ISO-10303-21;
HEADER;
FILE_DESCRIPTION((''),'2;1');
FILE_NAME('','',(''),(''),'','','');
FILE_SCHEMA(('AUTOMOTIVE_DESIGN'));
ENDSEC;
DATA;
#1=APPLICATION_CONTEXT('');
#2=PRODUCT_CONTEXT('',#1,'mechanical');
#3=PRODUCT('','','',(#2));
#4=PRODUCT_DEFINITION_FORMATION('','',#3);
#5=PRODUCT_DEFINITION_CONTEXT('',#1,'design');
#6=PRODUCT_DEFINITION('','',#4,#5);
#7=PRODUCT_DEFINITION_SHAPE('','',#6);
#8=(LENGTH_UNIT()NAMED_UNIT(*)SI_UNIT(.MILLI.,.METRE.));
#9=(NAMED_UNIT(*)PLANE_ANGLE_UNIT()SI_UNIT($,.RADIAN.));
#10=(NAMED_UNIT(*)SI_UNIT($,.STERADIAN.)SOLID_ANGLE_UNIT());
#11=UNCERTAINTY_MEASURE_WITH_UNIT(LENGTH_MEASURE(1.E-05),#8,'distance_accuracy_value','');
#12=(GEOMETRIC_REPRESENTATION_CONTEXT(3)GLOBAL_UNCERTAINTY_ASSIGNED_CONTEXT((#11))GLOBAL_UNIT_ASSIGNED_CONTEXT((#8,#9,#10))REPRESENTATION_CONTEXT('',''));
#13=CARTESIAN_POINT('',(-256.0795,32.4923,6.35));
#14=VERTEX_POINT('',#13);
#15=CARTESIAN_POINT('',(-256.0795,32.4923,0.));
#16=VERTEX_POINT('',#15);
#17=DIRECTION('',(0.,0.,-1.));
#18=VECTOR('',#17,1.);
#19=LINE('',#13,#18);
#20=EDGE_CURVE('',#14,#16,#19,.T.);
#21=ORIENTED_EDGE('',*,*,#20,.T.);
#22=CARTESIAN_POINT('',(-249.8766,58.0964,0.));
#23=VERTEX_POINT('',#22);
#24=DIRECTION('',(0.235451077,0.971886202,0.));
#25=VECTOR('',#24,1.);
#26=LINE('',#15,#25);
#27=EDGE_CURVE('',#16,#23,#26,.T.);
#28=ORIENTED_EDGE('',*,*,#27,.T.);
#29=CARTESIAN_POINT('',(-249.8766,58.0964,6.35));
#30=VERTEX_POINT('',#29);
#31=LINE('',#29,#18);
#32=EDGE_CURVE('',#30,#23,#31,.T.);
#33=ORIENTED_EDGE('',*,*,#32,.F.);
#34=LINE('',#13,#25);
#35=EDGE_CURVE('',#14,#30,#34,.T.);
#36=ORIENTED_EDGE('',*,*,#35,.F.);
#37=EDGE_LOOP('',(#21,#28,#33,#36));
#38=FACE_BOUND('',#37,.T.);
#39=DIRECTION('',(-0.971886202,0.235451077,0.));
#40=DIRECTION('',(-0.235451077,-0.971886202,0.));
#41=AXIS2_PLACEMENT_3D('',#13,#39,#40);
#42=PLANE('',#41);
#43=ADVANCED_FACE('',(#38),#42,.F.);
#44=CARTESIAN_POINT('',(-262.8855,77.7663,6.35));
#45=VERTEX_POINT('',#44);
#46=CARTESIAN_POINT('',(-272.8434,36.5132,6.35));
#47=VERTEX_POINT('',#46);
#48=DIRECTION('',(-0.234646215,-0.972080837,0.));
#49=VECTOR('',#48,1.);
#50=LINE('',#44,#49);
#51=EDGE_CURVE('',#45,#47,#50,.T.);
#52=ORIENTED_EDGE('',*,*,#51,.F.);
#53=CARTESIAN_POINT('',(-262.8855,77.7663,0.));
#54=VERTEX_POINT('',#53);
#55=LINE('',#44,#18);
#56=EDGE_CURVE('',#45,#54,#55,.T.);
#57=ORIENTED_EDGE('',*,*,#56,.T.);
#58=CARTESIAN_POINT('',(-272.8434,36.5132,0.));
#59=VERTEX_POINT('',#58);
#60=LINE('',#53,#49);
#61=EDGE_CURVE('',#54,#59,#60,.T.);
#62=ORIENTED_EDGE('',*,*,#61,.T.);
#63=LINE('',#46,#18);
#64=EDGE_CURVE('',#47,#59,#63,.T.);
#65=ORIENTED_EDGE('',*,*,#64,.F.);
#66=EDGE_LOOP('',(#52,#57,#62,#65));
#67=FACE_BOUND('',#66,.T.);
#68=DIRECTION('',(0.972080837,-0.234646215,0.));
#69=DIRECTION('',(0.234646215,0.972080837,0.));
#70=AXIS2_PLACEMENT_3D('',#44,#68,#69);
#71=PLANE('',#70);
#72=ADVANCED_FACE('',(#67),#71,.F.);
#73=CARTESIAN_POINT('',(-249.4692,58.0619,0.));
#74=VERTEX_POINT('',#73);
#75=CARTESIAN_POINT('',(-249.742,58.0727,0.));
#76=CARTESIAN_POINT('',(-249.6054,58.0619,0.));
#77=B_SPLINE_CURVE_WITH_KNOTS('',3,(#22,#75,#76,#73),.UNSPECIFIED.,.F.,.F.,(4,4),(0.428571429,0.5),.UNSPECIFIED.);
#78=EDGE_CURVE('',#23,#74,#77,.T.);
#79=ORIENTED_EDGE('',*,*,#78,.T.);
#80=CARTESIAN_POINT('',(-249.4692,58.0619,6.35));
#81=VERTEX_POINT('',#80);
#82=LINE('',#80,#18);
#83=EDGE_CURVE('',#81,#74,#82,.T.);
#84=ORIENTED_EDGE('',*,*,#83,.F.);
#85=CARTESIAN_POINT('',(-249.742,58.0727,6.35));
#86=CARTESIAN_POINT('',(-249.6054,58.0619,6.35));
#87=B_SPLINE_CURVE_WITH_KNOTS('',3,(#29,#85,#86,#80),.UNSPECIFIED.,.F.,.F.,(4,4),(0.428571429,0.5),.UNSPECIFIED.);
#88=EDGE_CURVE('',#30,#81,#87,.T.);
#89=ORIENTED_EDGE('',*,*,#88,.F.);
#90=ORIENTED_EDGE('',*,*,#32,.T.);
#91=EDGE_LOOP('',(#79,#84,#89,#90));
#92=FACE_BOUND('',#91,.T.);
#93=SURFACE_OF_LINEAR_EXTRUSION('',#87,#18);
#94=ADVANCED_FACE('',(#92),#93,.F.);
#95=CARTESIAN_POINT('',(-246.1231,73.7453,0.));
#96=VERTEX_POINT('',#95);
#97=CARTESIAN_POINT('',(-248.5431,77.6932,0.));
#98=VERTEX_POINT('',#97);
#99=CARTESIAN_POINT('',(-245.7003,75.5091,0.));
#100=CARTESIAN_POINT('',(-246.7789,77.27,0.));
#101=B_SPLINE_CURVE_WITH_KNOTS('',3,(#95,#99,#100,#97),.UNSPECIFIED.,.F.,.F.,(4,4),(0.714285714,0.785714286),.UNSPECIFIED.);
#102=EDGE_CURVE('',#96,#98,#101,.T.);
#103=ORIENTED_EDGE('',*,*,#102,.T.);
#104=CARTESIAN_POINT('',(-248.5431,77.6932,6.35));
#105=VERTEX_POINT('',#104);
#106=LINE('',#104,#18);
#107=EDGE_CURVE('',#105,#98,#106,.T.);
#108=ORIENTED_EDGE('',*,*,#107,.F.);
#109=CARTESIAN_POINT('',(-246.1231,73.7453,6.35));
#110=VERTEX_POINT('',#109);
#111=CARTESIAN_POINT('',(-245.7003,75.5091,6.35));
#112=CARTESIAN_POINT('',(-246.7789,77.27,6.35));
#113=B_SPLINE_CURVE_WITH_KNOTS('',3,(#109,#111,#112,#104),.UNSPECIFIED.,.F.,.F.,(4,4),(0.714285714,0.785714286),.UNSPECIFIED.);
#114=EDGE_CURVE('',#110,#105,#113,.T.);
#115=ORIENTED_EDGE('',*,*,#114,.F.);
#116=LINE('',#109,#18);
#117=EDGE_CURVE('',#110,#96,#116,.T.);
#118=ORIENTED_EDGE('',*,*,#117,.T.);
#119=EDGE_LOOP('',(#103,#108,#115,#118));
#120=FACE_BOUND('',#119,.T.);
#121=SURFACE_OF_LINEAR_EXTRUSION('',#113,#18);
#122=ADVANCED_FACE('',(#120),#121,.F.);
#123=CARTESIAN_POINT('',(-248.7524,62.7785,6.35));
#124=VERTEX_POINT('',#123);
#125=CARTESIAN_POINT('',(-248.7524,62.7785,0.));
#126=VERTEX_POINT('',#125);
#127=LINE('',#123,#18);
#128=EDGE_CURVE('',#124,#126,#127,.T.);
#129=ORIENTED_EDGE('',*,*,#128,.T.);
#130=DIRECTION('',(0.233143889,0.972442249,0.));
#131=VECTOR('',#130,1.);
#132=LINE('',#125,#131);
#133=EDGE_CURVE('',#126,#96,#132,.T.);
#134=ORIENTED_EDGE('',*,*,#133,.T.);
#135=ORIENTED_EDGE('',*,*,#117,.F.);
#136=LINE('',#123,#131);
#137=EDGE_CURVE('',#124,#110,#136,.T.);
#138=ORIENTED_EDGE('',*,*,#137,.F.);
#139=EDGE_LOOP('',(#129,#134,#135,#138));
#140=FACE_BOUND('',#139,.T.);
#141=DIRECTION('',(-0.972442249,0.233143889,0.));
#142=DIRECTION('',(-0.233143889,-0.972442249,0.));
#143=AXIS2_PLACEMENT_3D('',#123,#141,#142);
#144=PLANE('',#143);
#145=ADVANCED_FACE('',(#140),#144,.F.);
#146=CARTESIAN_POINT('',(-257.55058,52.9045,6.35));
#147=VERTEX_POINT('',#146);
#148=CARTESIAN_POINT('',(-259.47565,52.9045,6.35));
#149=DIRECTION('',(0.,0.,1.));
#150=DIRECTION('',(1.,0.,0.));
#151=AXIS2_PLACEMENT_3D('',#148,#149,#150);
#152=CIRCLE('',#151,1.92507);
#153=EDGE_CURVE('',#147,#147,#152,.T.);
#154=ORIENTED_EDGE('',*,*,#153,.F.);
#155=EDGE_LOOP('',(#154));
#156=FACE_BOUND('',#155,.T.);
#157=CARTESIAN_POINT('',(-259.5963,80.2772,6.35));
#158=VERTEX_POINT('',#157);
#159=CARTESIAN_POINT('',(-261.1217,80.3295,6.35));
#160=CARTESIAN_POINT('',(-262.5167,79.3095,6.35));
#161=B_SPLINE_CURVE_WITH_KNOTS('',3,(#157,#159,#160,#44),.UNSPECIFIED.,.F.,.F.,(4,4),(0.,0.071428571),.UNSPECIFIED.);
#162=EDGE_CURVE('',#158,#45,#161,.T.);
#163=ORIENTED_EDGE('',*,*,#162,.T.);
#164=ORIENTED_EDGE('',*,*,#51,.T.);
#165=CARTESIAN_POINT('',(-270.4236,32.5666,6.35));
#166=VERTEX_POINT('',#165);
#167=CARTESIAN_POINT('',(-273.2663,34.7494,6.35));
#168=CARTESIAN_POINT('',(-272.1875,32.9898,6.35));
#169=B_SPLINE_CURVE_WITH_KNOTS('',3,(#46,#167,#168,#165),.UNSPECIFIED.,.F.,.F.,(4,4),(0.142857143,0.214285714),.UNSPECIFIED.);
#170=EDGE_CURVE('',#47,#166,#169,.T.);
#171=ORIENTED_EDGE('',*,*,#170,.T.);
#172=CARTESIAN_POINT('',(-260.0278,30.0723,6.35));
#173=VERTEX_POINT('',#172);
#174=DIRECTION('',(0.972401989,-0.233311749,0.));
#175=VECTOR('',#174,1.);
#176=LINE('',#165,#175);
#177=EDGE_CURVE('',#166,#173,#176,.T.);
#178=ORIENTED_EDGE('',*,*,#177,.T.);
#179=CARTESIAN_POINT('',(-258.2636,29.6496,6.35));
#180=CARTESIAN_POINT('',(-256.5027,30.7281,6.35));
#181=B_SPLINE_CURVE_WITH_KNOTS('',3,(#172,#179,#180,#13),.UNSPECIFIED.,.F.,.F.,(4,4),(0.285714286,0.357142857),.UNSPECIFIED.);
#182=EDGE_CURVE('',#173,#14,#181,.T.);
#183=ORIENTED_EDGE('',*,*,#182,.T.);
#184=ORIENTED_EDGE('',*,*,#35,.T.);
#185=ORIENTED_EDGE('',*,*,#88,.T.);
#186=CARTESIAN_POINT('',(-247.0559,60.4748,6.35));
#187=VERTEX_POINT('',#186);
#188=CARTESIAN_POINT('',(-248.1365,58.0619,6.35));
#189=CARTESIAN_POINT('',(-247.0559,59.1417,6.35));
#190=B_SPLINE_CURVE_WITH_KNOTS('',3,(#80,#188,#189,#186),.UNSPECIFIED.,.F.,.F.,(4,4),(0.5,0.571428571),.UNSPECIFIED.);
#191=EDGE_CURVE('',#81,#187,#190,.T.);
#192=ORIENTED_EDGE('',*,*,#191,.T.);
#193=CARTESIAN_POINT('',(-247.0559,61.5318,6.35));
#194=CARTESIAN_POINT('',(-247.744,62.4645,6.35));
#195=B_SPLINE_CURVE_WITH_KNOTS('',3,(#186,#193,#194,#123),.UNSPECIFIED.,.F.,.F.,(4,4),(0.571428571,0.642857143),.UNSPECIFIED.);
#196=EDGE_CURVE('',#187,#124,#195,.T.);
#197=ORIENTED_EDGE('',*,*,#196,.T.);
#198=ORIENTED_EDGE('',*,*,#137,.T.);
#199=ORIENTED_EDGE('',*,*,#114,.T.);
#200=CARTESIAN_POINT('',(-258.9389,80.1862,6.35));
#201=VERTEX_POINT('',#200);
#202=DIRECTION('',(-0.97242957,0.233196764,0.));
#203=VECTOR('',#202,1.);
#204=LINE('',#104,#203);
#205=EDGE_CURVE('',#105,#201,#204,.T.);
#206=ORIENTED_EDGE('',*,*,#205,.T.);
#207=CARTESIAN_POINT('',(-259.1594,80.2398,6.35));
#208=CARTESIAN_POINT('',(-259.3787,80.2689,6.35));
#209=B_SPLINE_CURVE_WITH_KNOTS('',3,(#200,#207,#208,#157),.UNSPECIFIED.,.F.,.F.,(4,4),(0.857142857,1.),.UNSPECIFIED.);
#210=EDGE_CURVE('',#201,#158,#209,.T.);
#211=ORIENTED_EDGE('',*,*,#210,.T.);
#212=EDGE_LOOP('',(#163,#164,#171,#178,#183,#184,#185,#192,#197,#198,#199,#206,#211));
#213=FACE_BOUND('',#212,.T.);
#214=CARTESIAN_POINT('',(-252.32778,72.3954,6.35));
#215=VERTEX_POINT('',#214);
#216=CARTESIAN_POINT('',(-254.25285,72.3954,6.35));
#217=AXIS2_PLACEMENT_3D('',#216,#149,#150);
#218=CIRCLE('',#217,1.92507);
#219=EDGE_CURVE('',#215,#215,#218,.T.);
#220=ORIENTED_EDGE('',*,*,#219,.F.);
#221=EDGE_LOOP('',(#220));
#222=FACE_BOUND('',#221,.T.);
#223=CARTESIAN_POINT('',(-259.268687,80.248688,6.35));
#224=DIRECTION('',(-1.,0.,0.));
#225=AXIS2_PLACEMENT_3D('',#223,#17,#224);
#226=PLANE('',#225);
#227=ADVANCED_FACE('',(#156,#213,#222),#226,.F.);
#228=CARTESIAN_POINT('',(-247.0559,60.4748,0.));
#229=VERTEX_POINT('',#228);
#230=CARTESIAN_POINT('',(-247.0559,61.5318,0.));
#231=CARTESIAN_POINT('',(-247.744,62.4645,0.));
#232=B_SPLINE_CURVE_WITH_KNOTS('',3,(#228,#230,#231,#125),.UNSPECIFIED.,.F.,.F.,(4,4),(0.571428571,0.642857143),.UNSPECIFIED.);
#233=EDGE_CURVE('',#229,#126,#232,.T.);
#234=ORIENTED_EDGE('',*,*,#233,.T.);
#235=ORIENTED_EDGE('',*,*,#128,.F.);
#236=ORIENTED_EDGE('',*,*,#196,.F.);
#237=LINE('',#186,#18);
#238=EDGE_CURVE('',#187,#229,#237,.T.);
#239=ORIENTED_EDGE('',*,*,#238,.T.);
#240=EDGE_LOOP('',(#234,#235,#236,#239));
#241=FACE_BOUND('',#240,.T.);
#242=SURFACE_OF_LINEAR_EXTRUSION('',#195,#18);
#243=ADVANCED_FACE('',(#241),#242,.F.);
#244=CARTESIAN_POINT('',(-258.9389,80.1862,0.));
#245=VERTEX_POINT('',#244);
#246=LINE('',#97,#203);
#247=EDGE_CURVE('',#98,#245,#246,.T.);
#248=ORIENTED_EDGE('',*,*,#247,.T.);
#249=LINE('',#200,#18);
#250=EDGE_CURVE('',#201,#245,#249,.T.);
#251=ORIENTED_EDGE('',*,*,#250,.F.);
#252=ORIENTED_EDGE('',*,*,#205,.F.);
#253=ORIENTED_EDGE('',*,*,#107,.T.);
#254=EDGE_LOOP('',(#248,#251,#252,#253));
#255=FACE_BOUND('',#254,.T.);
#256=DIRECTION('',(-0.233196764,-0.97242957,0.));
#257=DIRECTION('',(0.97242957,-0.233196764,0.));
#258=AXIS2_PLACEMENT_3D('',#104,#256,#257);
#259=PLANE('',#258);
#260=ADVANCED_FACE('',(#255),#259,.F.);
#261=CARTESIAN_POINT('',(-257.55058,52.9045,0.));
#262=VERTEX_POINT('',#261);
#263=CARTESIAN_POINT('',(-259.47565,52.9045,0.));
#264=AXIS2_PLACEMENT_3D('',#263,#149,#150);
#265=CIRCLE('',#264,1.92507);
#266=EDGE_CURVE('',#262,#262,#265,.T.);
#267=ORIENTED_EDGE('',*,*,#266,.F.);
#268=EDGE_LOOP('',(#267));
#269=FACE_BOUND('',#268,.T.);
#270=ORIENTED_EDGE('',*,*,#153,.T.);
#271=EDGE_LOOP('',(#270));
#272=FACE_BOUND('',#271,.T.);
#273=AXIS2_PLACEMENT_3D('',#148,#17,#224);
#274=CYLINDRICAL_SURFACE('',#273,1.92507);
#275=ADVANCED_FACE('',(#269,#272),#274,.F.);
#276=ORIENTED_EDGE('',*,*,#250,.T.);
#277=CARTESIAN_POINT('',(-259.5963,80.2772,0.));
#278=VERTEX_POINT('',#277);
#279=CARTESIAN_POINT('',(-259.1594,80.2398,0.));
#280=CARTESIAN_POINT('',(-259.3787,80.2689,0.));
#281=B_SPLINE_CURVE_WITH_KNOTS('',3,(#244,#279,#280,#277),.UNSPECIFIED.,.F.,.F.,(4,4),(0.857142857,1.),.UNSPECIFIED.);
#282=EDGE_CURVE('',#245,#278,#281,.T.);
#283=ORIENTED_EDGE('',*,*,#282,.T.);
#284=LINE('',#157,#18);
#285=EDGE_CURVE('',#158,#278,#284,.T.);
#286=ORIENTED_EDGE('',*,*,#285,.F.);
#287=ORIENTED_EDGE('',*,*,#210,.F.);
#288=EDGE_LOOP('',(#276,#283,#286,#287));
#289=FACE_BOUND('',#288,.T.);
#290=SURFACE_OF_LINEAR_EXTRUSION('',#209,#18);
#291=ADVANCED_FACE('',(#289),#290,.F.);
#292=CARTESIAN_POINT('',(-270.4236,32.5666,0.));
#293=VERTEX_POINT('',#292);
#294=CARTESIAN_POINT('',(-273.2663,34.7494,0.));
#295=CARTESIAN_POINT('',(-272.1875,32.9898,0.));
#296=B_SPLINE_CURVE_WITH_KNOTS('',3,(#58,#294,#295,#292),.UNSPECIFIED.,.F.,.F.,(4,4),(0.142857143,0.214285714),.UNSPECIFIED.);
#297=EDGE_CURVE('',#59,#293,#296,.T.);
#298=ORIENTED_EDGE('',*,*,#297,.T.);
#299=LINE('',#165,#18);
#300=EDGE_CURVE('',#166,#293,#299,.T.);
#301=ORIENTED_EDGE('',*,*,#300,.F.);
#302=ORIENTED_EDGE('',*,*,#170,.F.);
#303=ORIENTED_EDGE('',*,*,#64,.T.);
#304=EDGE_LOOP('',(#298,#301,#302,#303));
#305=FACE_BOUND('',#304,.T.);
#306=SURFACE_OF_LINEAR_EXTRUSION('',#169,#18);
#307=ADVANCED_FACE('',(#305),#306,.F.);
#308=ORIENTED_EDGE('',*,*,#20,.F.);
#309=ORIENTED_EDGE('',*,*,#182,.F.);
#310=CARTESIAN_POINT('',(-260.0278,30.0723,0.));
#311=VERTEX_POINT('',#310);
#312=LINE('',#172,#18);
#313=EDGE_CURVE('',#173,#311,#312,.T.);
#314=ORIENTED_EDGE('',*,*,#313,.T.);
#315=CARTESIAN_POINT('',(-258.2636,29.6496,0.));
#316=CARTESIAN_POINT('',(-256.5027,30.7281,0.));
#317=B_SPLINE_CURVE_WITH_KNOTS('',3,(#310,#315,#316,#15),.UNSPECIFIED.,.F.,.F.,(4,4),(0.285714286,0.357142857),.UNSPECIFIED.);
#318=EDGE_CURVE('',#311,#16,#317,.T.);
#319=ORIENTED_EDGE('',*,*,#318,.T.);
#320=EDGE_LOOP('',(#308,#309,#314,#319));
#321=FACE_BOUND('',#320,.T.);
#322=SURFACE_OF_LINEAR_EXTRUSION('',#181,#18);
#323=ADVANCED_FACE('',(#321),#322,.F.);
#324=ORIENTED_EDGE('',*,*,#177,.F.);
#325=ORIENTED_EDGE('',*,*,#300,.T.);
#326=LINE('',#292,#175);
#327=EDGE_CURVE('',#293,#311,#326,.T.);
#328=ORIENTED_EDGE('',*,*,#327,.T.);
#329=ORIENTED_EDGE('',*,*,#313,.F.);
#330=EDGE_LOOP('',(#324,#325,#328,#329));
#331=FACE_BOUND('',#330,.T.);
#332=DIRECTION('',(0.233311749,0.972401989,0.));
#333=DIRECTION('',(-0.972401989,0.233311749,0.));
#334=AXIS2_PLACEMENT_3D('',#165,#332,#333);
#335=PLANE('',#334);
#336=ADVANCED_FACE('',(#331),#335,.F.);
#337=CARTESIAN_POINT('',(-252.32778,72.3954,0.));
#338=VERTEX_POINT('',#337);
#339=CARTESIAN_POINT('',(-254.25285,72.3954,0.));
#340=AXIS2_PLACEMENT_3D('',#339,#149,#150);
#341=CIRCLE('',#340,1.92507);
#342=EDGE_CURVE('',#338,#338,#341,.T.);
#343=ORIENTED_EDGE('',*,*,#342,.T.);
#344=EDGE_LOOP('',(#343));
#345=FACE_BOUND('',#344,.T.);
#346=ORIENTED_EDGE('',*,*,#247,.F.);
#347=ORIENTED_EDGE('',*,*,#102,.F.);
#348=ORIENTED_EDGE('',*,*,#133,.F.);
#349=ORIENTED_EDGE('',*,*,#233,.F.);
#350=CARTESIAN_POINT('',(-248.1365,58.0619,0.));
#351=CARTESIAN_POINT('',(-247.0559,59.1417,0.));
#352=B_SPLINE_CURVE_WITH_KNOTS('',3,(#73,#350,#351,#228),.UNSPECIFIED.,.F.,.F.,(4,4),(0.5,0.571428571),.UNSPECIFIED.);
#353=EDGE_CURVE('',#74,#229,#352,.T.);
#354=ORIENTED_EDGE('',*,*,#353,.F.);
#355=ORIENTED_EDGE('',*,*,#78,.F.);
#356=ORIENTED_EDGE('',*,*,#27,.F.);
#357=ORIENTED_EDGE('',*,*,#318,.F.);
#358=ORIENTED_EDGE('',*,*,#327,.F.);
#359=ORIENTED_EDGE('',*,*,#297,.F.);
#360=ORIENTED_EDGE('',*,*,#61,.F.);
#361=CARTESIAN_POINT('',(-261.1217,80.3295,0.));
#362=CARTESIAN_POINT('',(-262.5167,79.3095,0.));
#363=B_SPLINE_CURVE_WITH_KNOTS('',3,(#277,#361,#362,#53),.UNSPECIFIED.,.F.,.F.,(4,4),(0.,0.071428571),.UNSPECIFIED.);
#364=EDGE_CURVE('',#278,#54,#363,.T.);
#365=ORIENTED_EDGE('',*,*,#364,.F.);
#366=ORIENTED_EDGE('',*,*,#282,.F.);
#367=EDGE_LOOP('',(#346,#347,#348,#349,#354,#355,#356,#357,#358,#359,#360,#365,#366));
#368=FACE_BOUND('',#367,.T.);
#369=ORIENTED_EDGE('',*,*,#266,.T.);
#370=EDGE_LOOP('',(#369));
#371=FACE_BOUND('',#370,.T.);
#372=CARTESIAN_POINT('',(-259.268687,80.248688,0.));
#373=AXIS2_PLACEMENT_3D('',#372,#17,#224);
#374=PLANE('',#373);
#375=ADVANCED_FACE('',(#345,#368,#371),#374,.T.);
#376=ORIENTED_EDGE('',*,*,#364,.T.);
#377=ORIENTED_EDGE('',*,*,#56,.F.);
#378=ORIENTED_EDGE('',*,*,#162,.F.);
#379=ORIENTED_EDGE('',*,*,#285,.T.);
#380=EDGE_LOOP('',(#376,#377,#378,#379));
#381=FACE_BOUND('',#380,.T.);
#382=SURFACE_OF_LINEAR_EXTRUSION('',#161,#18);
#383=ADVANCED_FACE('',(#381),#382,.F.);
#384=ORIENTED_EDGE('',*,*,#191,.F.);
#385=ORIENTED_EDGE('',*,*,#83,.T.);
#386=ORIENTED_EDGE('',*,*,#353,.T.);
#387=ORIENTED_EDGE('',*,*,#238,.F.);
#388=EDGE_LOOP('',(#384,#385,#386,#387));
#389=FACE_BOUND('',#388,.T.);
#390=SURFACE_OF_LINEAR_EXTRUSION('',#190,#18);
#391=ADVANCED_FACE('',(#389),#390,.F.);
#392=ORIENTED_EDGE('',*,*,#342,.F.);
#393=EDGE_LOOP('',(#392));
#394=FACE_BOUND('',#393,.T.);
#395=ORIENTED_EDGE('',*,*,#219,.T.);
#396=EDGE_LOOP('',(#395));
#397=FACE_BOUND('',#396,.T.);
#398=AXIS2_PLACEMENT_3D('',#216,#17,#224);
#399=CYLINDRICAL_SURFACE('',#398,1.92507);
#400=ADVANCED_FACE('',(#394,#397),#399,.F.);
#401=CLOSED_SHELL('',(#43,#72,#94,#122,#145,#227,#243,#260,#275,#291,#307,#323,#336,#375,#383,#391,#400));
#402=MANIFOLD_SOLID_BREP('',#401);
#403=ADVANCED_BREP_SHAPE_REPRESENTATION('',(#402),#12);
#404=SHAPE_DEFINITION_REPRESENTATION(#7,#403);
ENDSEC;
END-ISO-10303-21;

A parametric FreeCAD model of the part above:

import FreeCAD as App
import Part
import Sketcher

V = App.Vector
Q = App.Units.Quantity

doc = App.newDocument("Part")
body = doc.addObject("PartDesign::Body", "Body")

sketch1 = doc.addObject("Sketcher::SketchObject", "Sketch")
body.addObject(sketch1)
sketch1.AttachmentSupport = (doc.XY_Plane, [""])
sketch1.MapMode = "FlatFace"
sketch1.addGeometry(Part.LineSegment(V(-262.8855, 77.7663, 0), V(-272.8434, 36.5132, 0)), False)
sketch1.addGeometry(Part.BSplineCurve([V(-272.8434, 36.5132, 0), V(-273.2663, 34.7494, 0), V(-272.1875, 32.9898, 0), V(-270.4236, 32.5666, 0)], [4, 4], [0.142857143, 0.214285714], False, 3, [1, 1, 1, 1], False), False)
sketch1.addGeometry(Part.LineSegment(V(-270.4236, 32.5666, 0), V(-260.0278, 30.0723, 0)), False)
sketch1.addGeometry(Part.BSplineCurve([V(-260.0278, 30.0723, 0), V(-258.2636, 29.6496, 0), V(-256.5027, 30.7281, 0), V(-256.0795, 32.4923, 0)], [4, 4], [0.285714286, 0.357142857], False, 3, [1, 1, 1, 1], False), False)
sketch1.addGeometry(Part.LineSegment(V(-256.0795, 32.4923, 0), V(-249.8766, 58.0964, 0)), False)
sketch1.addGeometry(Part.BSplineCurve([V(-249.8766, 58.0964, 0), V(-249.742, 58.0727, 0), V(-249.6054, 58.0619, 0), V(-248.1365, 58.0619, 0), V(-247.0559, 59.1417, 0), V(-247.0559, 61.5318, 0), V(-247.744, 62.4645, 0), V(-248.7524, 62.7785, 0)], [4, 2, 2, 4], [0.428571429, 0.5, 1.198919652, 1.753085185], False, 3, [1, 1, 1, 1, 1, 1, 1, 1], False), False)
sketch1.addGeometry(Part.LineSegment(V(-248.7524, 62.7785, 0), V(-246.1231, 73.7453, 0)), False)
sketch1.addGeometry(Part.BSplineCurve([V(-246.1231, 73.7453, 0), V(-245.7003, 75.5091, 0), V(-246.7789, 77.27, 0), V(-248.5431, 77.6932, 0)], [4, 4], [0.714285714, 0.785714286], False, 3, [1, 1, 1, 1], False), False)
sketch1.addGeometry(Part.LineSegment(V(-248.5431, 77.6932, 0), V(-258.9389, 80.1862, 0)), False)
sketch1.addGeometry(Part.BSplineCurve([V(-258.9389, 80.1862, 0), V(-259.1594, 80.2398, 0), V(-259.3787, 80.2689, 0), V(-259.5963, 80.2772, 0)], [4, 4], [0.857142857, 1], False, 3, [1, 1, 1, 1], False), False)
sketch1.addGeometry(Part.BSplineCurve([V(-259.5963, 80.2772, 0), V(-261.1217, 80.3295, 0), V(-262.5167, 79.3095, 0), V(-262.8855, 77.7663, 0)], [4, 4], [0, 0.071428571], False, 3, [1, 1, 1, 1], False), False)
sketch1.addGeometry(Part.Circle(V(-259.47565, 52.9045, 0), V(0, 0, 1), 1.92507), False)
sketch1.addGeometry(Part.Circle(V(-254.25285, 72.3954, 0), V(0, 0, 1), 1.92507), False)
sketch1.addConstraint(Sketcher.Constraint("Block", 1))
sketch1.addConstraint(Sketcher.Constraint("Block", 3))
sketch1.addConstraint(Sketcher.Constraint("Block", 5))
sketch1.addConstraint(Sketcher.Constraint("Block", 7))
sketch1.addConstraint(Sketcher.Constraint("Block", 9))
sketch1.addConstraint(Sketcher.Constraint("Block", 10))
sketch1.addConstraint(Sketcher.Constraint("Coincident", 0, 2, 1, 1))
sketch1.addConstraint(Sketcher.Constraint("Coincident", 1, 2, 2, 1))
sketch1.addConstraint(Sketcher.Constraint("Coincident", 2, 2, 3, 1))
sketch1.addConstraint(Sketcher.Constraint("Coincident", 3, 2, 4, 1))
sketch1.addConstraint(Sketcher.Constraint("Coincident", 4, 2, 5, 1))
sketch1.addConstraint(Sketcher.Constraint("Coincident", 5, 2, 6, 1))
sketch1.addConstraint(Sketcher.Constraint("Coincident", 6, 2, 7, 1))
sketch1.addConstraint(Sketcher.Constraint("Coincident", 7, 2, 8, 1))
sketch1.addConstraint(Sketcher.Constraint("Coincident", 8, 2, 9, 1))
sketch1.addConstraint(Sketcher.Constraint("Coincident", 10, 2, 0, 1))
sketch1.addConstraint(Sketcher.Constraint("Equal", 11, 12))
sketch1.addConstraint(Sketcher.Constraint("Diameter", 11, 3.85014))
sketch1.addConstraint(Sketcher.Constraint("DistanceY", -1, 1, 11, 3, 52.9045))
sketch1.addConstraint(Sketcher.Constraint("DistanceY", -1, 1, 12, 3, 72.3954))
sketch1.addConstraint(Sketcher.Constraint("DistanceX", 11, 3, 12, 3, 5.2228))
sketch1.addConstraint(Sketcher.Constraint("DistanceX", 11, 3, -1, 1, 259.47565))
pad1 = doc.addObject("PartDesign::Pad", "Pad")
body.addObject(pad1)
pad1.Profile = sketch1
pad1.Length = Q("0.25 in")

doc.recompute()
